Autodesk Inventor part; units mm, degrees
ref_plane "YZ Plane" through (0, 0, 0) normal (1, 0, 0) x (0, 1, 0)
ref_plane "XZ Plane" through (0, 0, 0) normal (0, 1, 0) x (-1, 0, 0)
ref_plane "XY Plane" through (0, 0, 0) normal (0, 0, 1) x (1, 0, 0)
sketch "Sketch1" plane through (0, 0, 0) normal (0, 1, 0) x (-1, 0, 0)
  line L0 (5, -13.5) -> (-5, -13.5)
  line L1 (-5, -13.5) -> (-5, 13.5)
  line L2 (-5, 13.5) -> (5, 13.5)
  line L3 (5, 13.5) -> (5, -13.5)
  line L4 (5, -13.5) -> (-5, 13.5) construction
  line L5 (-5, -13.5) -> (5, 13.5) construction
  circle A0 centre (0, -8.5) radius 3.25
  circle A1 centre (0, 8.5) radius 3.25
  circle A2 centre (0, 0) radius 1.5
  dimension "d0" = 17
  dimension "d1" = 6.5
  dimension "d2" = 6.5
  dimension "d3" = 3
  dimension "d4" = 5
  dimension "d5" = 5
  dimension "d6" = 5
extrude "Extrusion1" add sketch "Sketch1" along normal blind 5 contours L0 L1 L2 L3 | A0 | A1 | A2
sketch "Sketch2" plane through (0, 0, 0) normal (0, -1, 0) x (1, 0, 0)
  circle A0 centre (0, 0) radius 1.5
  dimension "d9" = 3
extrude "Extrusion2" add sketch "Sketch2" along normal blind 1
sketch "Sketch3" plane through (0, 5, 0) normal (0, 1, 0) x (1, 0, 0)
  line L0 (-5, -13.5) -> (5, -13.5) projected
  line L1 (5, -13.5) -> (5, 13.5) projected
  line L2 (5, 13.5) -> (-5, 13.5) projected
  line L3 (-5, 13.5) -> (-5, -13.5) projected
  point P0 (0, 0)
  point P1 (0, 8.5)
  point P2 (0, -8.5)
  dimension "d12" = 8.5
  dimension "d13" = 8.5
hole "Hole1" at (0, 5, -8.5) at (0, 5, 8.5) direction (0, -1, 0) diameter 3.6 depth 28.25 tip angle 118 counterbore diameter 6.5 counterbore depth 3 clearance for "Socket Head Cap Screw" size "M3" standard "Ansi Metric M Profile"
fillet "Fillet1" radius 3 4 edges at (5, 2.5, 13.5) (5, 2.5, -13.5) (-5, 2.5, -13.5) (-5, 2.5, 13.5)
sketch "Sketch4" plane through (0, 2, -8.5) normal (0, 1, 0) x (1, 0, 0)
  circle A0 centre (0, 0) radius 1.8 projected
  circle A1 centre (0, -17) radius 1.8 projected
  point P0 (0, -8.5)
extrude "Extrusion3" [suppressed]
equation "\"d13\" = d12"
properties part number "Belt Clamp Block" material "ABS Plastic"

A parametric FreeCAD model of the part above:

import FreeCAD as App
import Part
import Sketcher

V = App.Vector


def edges_at(feature, points):
    """Names of the edges that pass closest to the given points."""
    edges = feature.Shape.Edges
    near = lambda p: min(range(len(edges)), key=lambda i: edges[i].distToShape(Part.Vertex(*p))[0])
    return sorted({f"Edge{near(p) + 1}" for p in points})


def add_polygon(sketch, points):
    """Adds a closed chain of lines whose ends are joined by coincident constraints."""
    first, n = sketch.GeometryCount, len(points)
    for a, b in zip(points, points[1:] + points[:1]):
        sketch.addGeometry(Part.LineSegment(App.Vector(*a, 0), App.Vector(*b, 0)), False)
    for i in range(n):
        sketch.addConstraint(Sketcher.Constraint("Coincident", first + i, 2, first + (i + 1) % n, 1))

doc = App.newDocument("Part")
body = doc.addObject("PartDesign::Body", "Body")

# Sketch on XZ plane
sketch1 = doc.addObject("Sketcher::SketchObject", "Sketch")
body.addObject(sketch1)
sketch1.AttachmentSupport = (doc.XZ_Plane, [""])
sketch1.MapMode = "FlatFace"
add_polygon(sketch1, [(5, -13.5), (-5, -13.5), (-5, 13.5), (5, 13.5)])  # lines 0-3
sketch1.addConstraint(Sketcher.Constraint("Horizontal", 0))
sketch1.addConstraint(Sketcher.Constraint("Vertical", 1))
sketch1.addConstraint(Sketcher.Constraint("Horizontal", 2))
sketch1.addConstraint(Sketcher.Constraint("Vertical", 3))
sketch1.addConstraint(Sketcher.Constraint("Symmetric", 0, 2, 2, 2, -1, 1))
sketch1.addConstraint(Sketcher.Constraint("DistanceX", 0, 2, -1, 1, 5.0))
sketch1.addConstraint(Sketcher.Constraint("DistanceY", 1, 1, 1, 2, 27.0))
pad1 = doc.addObject("PartDesign::Pad", "Pad")
body.addObject(pad1)
pad1.Profile = sketch1
pad1.Length = 5
pad1.Reversed = True

# Sketch on XZ plane
sketch2 = doc.addObject("Sketcher::SketchObject", "Sketch001")
body.addObject(sketch2)
sketch2.AttachmentSupport = (doc.XZ_Plane, [""])
sketch2.MapMode = "FlatFace"
sketch2.addGeometry(Part.Circle(V(0, 0, 0), V(0, 0, 1), 1.5), False)
sketch2.addConstraint(Sketcher.Constraint("Coincident", 0, 3, -1, 1))
sketch2.addConstraint(Sketcher.Constraint("Diameter", 0, 3.0))
pad2 = doc.addObject("PartDesign::Pad", "Pad001")
body.addObject(pad2)
pad2.Profile = sketch2
pad2.Length = 1

# Sketch on XZ plane
sketch3 = doc.addObject("Sketcher::SketchObject", "Sketch002")
body.addObject(sketch3)
sketch3.AttachmentSupport = (doc.XZ_Plane, [""])
sketch3.MapMode = "FlatFace"
sketch3.AttachmentOffset = App.Placement(V(0, 0, -5), App.Rotation())
sketch3.addGeometry(Part.Circle(V(0, -8.5, 0), V(0, 0, 1), 1.8), False)
sketch3.addGeometry(Part.Circle(V(0, 8.5, 0), V(0, 0, 1), 1.8), False)
sketch3.addConstraint(Sketcher.Constraint("Equal", 0, 1))
sketch3.addConstraint(Sketcher.Constraint("Symmetric", 0, 3, 1, 3, -1, 1))
sketch3.addConstraint(Sketcher.Constraint("PointOnObject", 0, 3, -2))
sketch3.addConstraint(Sketcher.Constraint("Diameter", 0, 3.6))
sketch3.addConstraint(Sketcher.Constraint("DistanceY", 0, 3, 1, 3, 17.0))
doc.recompute()
hole = doc.addObject("PartDesign::Hole", "Hole")
body.addObject(hole)
hole.Profile = sketch3
hole.ThreadType = "None"
hole.Diameter = 3.6
hole.DepthType = "Dimension"
hole.Depth = 28.25
hole.DrillPoint = "Angled"
hole.DrillPointAngle = 118
hole.HoleCutType = "Counterbore"
hole.HoleCutDiameter = 6.5
hole.HoleCutDepth = 3
hole.Reversed = True
doc.recompute()

fillet = doc.addObject("PartDesign::Fillet", "Fillet")
body.addObject(fillet)
fillet.Base = (hole, edges_at(hole, [
    (5, 2.5, 13.5),
    (5, 2.5, -13.5),
    (-5, 2.5, -13.5),
    (-5, 2.5, 13.5),
]))
fillet.Radius = 3

doc.recompute()
